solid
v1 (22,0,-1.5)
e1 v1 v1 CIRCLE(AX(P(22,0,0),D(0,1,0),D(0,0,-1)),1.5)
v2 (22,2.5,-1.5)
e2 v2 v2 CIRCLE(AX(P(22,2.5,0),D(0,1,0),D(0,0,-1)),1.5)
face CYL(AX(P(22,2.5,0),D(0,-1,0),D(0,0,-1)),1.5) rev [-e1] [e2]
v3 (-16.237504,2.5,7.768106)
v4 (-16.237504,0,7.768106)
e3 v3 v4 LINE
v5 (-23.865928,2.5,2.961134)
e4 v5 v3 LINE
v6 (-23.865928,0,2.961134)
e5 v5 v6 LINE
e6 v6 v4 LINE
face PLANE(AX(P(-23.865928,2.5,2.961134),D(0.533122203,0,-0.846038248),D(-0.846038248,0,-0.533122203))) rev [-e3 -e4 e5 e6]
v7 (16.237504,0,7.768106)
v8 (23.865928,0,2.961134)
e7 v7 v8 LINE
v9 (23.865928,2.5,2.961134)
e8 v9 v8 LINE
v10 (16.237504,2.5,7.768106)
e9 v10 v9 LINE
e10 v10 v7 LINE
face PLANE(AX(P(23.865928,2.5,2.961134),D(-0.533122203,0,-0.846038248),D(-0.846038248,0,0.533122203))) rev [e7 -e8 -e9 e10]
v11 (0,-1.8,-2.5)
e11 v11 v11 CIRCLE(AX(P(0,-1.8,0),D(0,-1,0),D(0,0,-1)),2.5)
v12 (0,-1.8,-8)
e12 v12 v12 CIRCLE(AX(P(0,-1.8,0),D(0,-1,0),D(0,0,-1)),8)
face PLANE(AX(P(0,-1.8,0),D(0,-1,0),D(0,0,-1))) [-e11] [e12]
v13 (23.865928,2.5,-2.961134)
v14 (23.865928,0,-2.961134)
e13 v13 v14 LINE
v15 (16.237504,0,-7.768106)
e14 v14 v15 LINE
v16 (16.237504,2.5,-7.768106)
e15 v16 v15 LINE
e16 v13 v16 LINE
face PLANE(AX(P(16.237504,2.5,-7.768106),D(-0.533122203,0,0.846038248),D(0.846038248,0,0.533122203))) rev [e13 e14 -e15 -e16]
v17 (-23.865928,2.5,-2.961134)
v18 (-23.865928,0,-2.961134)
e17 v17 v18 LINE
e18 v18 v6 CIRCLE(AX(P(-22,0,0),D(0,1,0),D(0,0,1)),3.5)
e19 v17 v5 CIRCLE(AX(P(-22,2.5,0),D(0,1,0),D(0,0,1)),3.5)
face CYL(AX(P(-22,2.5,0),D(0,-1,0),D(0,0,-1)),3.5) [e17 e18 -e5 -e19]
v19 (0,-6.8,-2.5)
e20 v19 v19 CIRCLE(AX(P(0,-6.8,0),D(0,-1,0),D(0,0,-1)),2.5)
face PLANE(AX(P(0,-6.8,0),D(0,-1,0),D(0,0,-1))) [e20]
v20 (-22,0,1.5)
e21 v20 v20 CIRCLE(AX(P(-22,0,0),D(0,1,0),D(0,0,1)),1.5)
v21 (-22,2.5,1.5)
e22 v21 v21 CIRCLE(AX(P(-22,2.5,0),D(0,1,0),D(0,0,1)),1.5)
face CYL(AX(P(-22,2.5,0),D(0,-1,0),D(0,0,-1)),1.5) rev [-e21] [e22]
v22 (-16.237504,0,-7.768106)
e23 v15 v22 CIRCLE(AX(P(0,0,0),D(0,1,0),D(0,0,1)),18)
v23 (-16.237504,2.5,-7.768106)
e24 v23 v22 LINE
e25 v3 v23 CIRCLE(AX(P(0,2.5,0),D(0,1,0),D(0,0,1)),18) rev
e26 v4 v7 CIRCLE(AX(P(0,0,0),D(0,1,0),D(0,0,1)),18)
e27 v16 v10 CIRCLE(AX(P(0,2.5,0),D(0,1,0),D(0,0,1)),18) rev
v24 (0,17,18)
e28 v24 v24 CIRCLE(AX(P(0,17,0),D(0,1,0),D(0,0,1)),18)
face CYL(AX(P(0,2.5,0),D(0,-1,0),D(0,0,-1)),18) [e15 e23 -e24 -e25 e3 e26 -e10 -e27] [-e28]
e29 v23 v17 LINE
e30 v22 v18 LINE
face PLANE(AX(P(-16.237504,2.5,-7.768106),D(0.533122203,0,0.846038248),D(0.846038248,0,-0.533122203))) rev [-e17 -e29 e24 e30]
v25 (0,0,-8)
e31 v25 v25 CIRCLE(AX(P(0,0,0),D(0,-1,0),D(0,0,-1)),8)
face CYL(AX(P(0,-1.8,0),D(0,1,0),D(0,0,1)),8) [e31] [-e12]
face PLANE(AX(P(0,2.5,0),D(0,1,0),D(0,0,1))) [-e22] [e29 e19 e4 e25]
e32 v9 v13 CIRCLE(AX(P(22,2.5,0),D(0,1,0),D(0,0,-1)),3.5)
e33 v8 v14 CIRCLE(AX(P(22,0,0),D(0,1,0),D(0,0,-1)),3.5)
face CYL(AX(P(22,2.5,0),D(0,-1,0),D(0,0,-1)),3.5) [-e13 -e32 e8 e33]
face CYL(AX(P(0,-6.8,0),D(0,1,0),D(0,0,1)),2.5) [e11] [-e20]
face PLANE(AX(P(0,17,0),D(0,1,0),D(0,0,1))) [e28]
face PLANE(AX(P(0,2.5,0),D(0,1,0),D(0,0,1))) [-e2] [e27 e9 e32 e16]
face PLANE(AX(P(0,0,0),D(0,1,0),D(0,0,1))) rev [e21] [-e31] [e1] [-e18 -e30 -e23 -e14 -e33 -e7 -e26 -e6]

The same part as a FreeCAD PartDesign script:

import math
import FreeCAD as App
import Part
import Sketcher
Q = App.Units.Quantity

doc = App.newDocument("Part")
params = doc.addObject("Spreadsheet::Sheet", "Params")
for row, (alias, value) in enumerate([
    ("sketch1_diameter", "3 mm"),
    ("sketch1_radius", "18 mm"),
    ("sketch1_radius2", "3.5 mm"),
    ("pad1_length", "2.5 mm"),
    ("sketch2_diameter", "36 mm"),
    ("pad2_length", "17 mm"),
    ("sketch3_diameter", "16 mm"),
    ("pad3_length", "1.8 mm"),
    ("sketch4_diameter", "5 mm"),
    ("pad4_length", "5 mm"),
], start=1):
    params.set(f"A{row}", alias)
    params.set(f"B{row}", "=" + value)
    params.setAlias(f"B{row}", alias)

body = doc.addObject("PartDesign::Body", "Body")

# Sketch on XZ plane
sketch1 = body.newObject("Sketcher::SketchObject", "Sketch")
sketch1.AttachmentSupport = (doc.getObject("XZ_Plane"), [""])
sketch1.MapMode = "FlatFace"
sketch1.addGeometry([
    Part.LineSegment(App.Vector(-16.2, -7.8, 0), App.Vector(-23.9, -3, 0)),  # 0
    Part.ArcOfCircle(Part.Circle(App.Vector(-22, 0, 0), App.Vector(0, 0, 1), 3.5), math.radians(122), math.radians(238)),  # 1
    Part.LineSegment(App.Vector(-23.9, 3, 0), App.Vector(-16.2, 7.8, 0)),  # 2
    Part.ArcOfCircle(Part.Circle(App.Vector(0, 0, 0), App.Vector(0, 0, 1), 18), math.radians(26), math.radians(154)),  # 3
    Part.LineSegment(App.Vector(16.2, 7.8, 0), App.Vector(23.9, 3, 0)),  # 4
    Part.ArcOfCircle(Part.Circle(App.Vector(22, 0, 0), App.Vector(0, 0, 1), 3.5), math.radians(-58), math.radians(58)),  # 5
    Part.LineSegment(App.Vector(23.9, -3, 0), App.Vector(16.2, -7.8, 0)),  # 6
    Part.ArcOfCircle(Part.Circle(App.Vector(0, 0, 0), App.Vector(0, 0, 1), 18), math.radians(-154), math.radians(-26)),  # 7
    Part.Circle(App.Vector(-22, 0, 0), App.Vector(0, 0, 1), 1.5),  # 8
    Part.Circle(App.Vector(22, 0, 0), App.Vector(0, 0, 1), 1.5),  # 9
], False)
sketch1.addConstraint([
    Sketcher.Constraint("Tangent", 0, 2, 1, 2),
    Sketcher.Constraint("Tangent", 1, 1, 2, 1),
    Sketcher.Constraint("Coincident", 2, 2, 3, 2),
    Sketcher.Constraint("Coincident", 3, 1, 4, 1),
    Sketcher.Constraint("Tangent", 4, 2, 5, 2),
    Sketcher.Constraint("Tangent", 5, 1, 6, 1),
    Sketcher.Constraint("Coincident", 6, 2, 7, 2),
    Sketcher.Constraint("Coincident", 7, 1, 0, 1),
    Sketcher.Constraint("Coincident", 3, 3, -1, 1),
    Sketcher.Constraint("Coincident", 7, 3, -1, 1),
    Sketcher.Constraint("Coincident", 8, 3, 1, 3),
    Sketcher.Constraint("Coincident", 9, 3, 5, 3),
    Sketcher.Constraint("Equal", 1, 5),
    Sketcher.Constraint("Equal", 3, 7),
    Sketcher.Constraint("Equal", 8, 9),
    Sketcher.Constraint("Symmetric", 1, 3, 5, 3, -1, 1),
    Sketcher.Constraint("Symmetric", 1, 1, 4, 2, -2),
    Sketcher.Constraint("Parallel", 0, 4),
    Sketcher.Constraint("Parallel", 2, 6),
    Sketcher.Constraint("Diameter", 8, Q("3 mm")),
    Sketcher.Constraint("Radius", 3, Q("18 mm")),
    Sketcher.Constraint("Radius", 1, Q("3.5 mm")),
    Sketcher.Constraint("DistanceX", 1, 3, -1, 1, Q("22 mm")),
    Sketcher.Constraint("Distance", 0, Q("9.016642 mm")),
])
sketch1.setExpression("Constraints[19]", "Params.sketch1_diameter")
sketch1.setExpression("Constraints[20]", "Params.sketch1_radius")
sketch1.setExpression("Constraints[21]", "Params.sketch1_radius2")
pad1 = body.newObject("PartDesign::Pad", "Pad")
pad1.Profile = sketch1
pad1.setExpression("Length", "Params.pad1_length")
pad1.Reversed = True

# Sketch on XZ plane
sketch2 = body.newObject("Sketcher::SketchObject", "Sketch001")
sketch2.AttachmentSupport = (doc.getObject("XZ_Plane"), [""])
sketch2.MapMode = "FlatFace"
sketch2.addGeometry(Part.Circle(App.Vector(0, 0, 0), App.Vector(0, 0, 1), 18), False)
sketch2.addConstraint([
    Sketcher.Constraint("Coincident", 0, 3, -1, 1),
    Sketcher.Constraint("Diameter", 0, Q("36 mm")),
])
sketch2.setExpression("Constraints[1]", "Params.sketch2_diameter")
pad2 = body.newObject("PartDesign::Pad", "Pad001")
pad2.Profile = sketch2
pad2.setExpression("Length", "Params.pad2_length")
pad2.Reversed = True

# Sketch on XZ plane
sketch3 = body.newObject("Sketcher::SketchObject", "Sketch002")
sketch3.AttachmentSupport = (doc.getObject("XZ_Plane"), [""])
sketch3.MapMode = "FlatFace"
sketch3.addGeometry(Part.Circle(App.Vector(0, 0, 0), App.Vector(0, 0, 1), 8), False)
sketch3.addConstraint([
    Sketcher.Constraint("Coincident", 0, 3, -1, 1),
    Sketcher.Constraint("Diameter", 0, Q("16 mm")),
])
sketch3.setExpression("Constraints[1]", "Params.sketch3_diameter")
pad3 = body.newObject("PartDesign::Pad", "Pad002")
pad3.Profile = sketch3
pad3.setExpression("Length", "Params.pad3_length")

# Sketch on XZ plane
sketch4 = body.newObject("Sketcher::SketchObject", "Sketch003")
sketch4.AttachmentSupport = (doc.getObject("XZ_Plane"), [""])
sketch4.MapMode = "FlatFace"
sketch4.AttachmentOffset = App.Placement(App.Vector(0, 0, 1.8), App.Rotation())
sketch4.addGeometry(Part.Circle(App.Vector(0, 0, 0), App.Vector(0, 0, 1), 2.5), False)
sketch4.addConstraint([
    Sketcher.Constraint("Coincident", 0, 3, -1, 1),
    Sketcher.Constraint("Diameter", 0, Q("5 mm")),
])
sketch4.setExpression("Constraints[1]", "Params.sketch4_diameter")
pad4 = body.newObject("PartDesign::Pad", "Pad003")
pad4.Profile = sketch4
pad4.setExpression("Length", "Params.pad4_length")

doc.recompute()
